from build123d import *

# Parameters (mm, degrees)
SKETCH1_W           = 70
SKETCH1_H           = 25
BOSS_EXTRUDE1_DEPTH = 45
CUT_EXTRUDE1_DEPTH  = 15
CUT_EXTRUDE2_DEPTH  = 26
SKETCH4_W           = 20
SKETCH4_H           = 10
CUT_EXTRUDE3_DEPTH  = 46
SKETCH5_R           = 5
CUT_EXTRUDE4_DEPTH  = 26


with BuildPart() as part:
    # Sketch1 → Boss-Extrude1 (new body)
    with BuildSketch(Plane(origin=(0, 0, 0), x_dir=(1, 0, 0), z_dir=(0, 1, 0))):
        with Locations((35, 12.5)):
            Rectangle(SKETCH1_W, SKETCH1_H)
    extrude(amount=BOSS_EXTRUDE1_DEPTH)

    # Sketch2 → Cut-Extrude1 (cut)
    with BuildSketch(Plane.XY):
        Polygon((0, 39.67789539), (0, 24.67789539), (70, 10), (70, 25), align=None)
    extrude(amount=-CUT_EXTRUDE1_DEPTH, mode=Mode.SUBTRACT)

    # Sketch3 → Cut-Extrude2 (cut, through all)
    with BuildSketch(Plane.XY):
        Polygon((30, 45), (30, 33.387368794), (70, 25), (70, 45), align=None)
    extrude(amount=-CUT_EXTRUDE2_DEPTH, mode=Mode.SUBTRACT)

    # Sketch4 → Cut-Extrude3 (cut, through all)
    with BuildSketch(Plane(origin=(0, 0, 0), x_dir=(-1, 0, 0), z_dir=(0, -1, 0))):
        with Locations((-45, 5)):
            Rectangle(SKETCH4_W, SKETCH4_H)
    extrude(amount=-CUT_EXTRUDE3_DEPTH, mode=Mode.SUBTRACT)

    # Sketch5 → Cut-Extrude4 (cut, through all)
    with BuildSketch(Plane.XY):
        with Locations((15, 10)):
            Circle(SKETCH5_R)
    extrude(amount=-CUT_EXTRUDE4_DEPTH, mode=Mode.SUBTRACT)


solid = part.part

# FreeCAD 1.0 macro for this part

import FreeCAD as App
import Part
import Sketcher
from FreeCAD import Vector

doc = App.newDocument("Part")
body = doc.addObject("PartDesign::Body", "Body")

sketch1 = body.newObject("Sketcher::SketchObject", "Sketch")
sketch1.AttachmentSupport = (doc.getObject("XZ_Plane"), [""])
sketch1.MapMode = "FlatFace"
sketch1.addGeometry([
    Part.LineSegment(Vector(0, -25, 0), Vector(0, 0, 0)),
    Part.LineSegment(Vector(0, 0, 0), Vector(70, 0, 0)),
    Part.LineSegment(Vector(70, 0, 0), Vector(70, -25, 0)),
    Part.LineSegment(Vector(70, -25, 0), Vector(0, -25, 0)),
], False)
sketch1.addConstraint([
    Sketcher.Constraint("Coincident", 0, 2, 1, 1),
    Sketcher.Constraint("Coincident", 1, 2, 2, 1),
    Sketcher.Constraint("Coincident", 2, 2, 3, 1),
    Sketcher.Constraint("Coincident", 3, 2, 0, 1),
    Sketcher.Constraint("Vertical", 0),
    Sketcher.Constraint("Horizontal", 1),
    Sketcher.Constraint("Vertical", 2),
    Sketcher.Constraint("Horizontal", 3),
    Sketcher.Constraint("Coincident", 0, 2, -1, 1),
    Sketcher.Constraint("DistanceX", 1, 1, 1, 2, 70.0),
    Sketcher.Constraint("DistanceY", 0, 1, 0, 2, 25.0),
])
pad1 = body.newObject("PartDesign::Pad", "Pad")
pad1.Profile = sketch1
pad1.Length = 45
pad1.Reversed = True

sketch2 = body.newObject("Sketcher::SketchObject", "Sketch001")
sketch2.AttachmentSupport = (doc.getObject("XY_Plane"), [""])
sketch2.MapMode = "FlatFace"
sketch2.addGeometry([
    Part.LineSegment(Vector(0, 40, 0), Vector(0, 25, 0)),
    Part.LineSegment(Vector(0, 25, 0), Vector(70, 10, 0)),
    Part.LineSegment(Vector(70, 10, 0), Vector(70, 25, 0)),
    Part.LineSegment(Vector(70, 25, 0), Vector(0, 40, 0)),
], False)
sketch2.addConstraint([
    Sketcher.Constraint("Coincident", 0, 2, 1, 1),
    Sketcher.Constraint("Coincident", 1, 2, 2, 1),
    Sketcher.Constraint("Coincident", 2, 2, 3, 1),
    Sketcher.Constraint("Coincident", 3, 2, 0, 1),
    Sketcher.Constraint("Vertical", 0),
    Sketcher.Constraint("Vertical", 2),
    Sketcher.Constraint("PointOnObject", 0, 2, -2),
    Sketcher.Constraint("Parallel", 1, 3),
    Sketcher.Constraint("DistanceY", 0, 2, 0, 1, 15.0),
    Sketcher.Constraint("DistanceX", -1, 1, 1, 2, 70.0),
    Sketcher.Constraint("DistanceY", -1, 1, 1, 2, 10.0),
    Sketcher.Constraint("Distance", 1, 71.522308),
])
pocket1 = body.newObject("PartDesign::Pocket", "Pocket")
pocket1.Profile = sketch2
pocket1.Length = 15

sketch3 = body.newObject("Sketcher::SketchObject", "Sketch002")
sketch3.AttachmentSupport = (doc.getObject("XY_Plane"), [""])
sketch3.MapMode = "FlatFace"
sketch3.addGeometry([
    Part.LineSegment(Vector(30, 45, 0), Vector(30, 33, 0)),
    Part.LineSegment(Vector(30, 33, 0), Vector(70, 25, 0)),
    Part.LineSegment(Vector(70, 25, 0), Vector(70, 45, 0)),
    Part.LineSegment(Vector(70, 45, 0), Vector(30, 45, 0)),
], False)
sketch3.addConstraint([
    Sketcher.Constraint("Coincident", 0, 2, 1, 1),
    Sketcher.Constraint("Coincident", 1, 2, 2, 1),
    Sketcher.Constraint("Coincident", 2, 2, 3, 1),
    Sketcher.Constraint("Coincident", 3, 2, 0, 1),
    Sketcher.Constraint("Vertical", 0),
    Sketcher.Constraint("Vertical", 2),
    Sketcher.Constraint("Horizontal", 3),
    Sketcher.Constraint("DistanceX", 3, 2, 3, 1, 40.0),
    Sketcher.Constraint("DistanceY", 2, 1, 2, 2, 20.0),
    Sketcher.Constraint("DistanceX", -1, 1, 0, 2, 30.0),
    Sketcher.Constraint("DistanceY", -1, 1, 1, 2, 25.0),
    Sketcher.Constraint("DistanceY", 0, 2, 0, 1, 11.612631),
])
pocket2 = body.newObject("PartDesign::Pocket", "Pocket001")
pocket2.Profile = sketch3
pocket2.Type = "ThroughAll"

sketch4 = body.newObject("Sketcher::SketchObject", "Sketch003")
sketch4.AttachmentSupport = (doc.getObject("XZ_Plane"), [""])
sketch4.MapMode = "FlatFace"
sketch4.addGeometry([
    Part.LineSegment(Vector(55, -10, 0), Vector(55, 0, 0)),
    Part.LineSegment(Vector(55, 0, 0), Vector(35, 0, 0)),
    Part.LineSegment(Vector(35, 0, 0), Vector(35, -10, 0)),
    Part.LineSegment(Vector(35, -10, 0), Vector(55, -10, 0)),
], False)
sketch4.addConstraint([
    Sketcher.Constraint("Coincident", 0, 2, 1, 1),
    Sketcher.Constraint("Coincident", 1, 2, 2, 1),
    Sketcher.Constraint("Coincident", 2, 2, 3, 1),
    Sketcher.Constraint("Coincident", 3, 2, 0, 1),
    Sketcher.Constraint("Vertical", 0),
    Sketcher.Constraint("Horizontal", 1),
    Sketcher.Constraint("Vertical", 2),
    Sketcher.Constraint("Horizontal", 3),
    Sketcher.Constraint("PointOnObject", 0, 2, -1),
    Sketcher.Constraint("DistanceX", 1, 2, 1, 1, 20.0),
    Sketcher.Constraint("DistanceY", 0, 1, 0, 2, 10.0),
    Sketcher.Constraint("DistanceX", -1, 1, 0, 2, 55.0),
])
pocket3 = body.newObject("PartDesign::Pocket", "Pocket002")
pocket3.Profile = sketch4
pocket3.Type = "ThroughAll"

sketch5 = body.newObject("Sketcher::SketchObject", "Sketch004")
sketch5.AttachmentSupport = (doc.getObject("XY_Plane"), [""])
sketch5.MapMode = "FlatFace"
sketch5.addGeometry(Part.Circle(Vector(15, 10, 0), Vector(0, 0, 1), 5), False)
sketch5.addConstraint([
    Sketcher.Constraint("Diameter", 0, 10.0),
    Sketcher.Constraint("DistanceX", -1, 1, 0, 3, 15.0),
    Sketcher.Constraint("DistanceY", -1, 1, 0, 3, 10.0),
])
pocket4 = body.newObject("PartDesign::Pocket", "Pocket003")
pocket4.Profile = sketch5
pocket4.Type = "ThroughAll"

doc.recompute()
